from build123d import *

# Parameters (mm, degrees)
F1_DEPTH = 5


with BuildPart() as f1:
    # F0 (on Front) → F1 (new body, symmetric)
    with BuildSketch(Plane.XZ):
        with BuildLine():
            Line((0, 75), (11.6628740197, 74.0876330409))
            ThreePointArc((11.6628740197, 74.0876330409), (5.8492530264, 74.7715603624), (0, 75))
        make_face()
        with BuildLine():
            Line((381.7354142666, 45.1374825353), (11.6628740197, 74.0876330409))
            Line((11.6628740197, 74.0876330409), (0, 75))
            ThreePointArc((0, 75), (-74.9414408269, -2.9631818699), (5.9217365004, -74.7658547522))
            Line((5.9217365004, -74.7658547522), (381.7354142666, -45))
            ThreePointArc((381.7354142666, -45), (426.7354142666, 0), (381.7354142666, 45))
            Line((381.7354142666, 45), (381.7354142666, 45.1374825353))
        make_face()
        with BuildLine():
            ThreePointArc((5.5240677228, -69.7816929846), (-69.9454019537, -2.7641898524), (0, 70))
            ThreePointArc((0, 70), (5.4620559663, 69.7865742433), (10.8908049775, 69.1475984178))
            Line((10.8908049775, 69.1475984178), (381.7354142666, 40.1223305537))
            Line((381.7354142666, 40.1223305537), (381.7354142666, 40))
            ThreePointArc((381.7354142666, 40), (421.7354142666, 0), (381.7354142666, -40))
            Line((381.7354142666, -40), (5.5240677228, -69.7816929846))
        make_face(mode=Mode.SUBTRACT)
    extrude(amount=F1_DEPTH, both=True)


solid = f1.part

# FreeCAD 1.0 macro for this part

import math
import FreeCAD as App
import Part
import Sketcher
from FreeCAD import Vector

doc = App.newDocument("Part")
body = doc.addObject("PartDesign::Body", "Body")

sketch1 = body.newObject("Sketcher::SketchObject", "Sketch")
sketch1.AttachmentSupport = (doc.getObject("XZ_Plane"), [""])
sketch1.MapMode = "FlatFace"
sketch1.addGeometry(Part.ArcOfCircle(Part.Circle(Vector(0, 0, 0), Vector(0, 0, 1), 75), math.radians(81.05), math.radians(90)), False)
sketch1.addGeometry(Part.ArcOfCircle(Part.Circle(Vector(0, 0, 0), Vector(0, 0, 1), 75), math.radians(90), math.radians(275)), False)
sketch1.addGeometry(Part.LineSegment(Vector(5.92, -74.77, 0), Vector(381.74, -45, 0)), False)
sketch1.addGeometry(Part.ArcOfCircle(Part.Circle(Vector(381.74, 0, 0), Vector(0, 0, 1), 45), math.radians(-90), math.radians(90)), False)
sketch1.addGeometry(Part.LineSegment(Vector(381.74, 45, 0), Vector(381.74, 45.14, 0)), False)
sketch1.addGeometry(Part.LineSegment(Vector(381.74, 45.14, 0), Vector(11.66, 74.09, 0)), False)
sketch1.addGeometry(Part.LineSegment(Vector(381.74, -40, 0), Vector(5.52, -69.78, 0)), False)
sketch1.addGeometry(Part.ArcOfCircle(Part.Circle(Vector(0, 0, 0), Vector(0, 0, 1), 70), math.radians(90), math.radians(275)), False)
sketch1.addGeometry(Part.ArcOfCircle(Part.Circle(Vector(0, 0, 0), Vector(0, 0, 1), 70), math.radians(81.05), math.radians(90)), False)
sketch1.addGeometry(Part.LineSegment(Vector(10.89, 69.15, 0), Vector(381.74, 40.12, 0)), False)
sketch1.addGeometry(Part.LineSegment(Vector(381.74, 40.12, 0), Vector(381.74, 40, 0)), False)
sketch1.addGeometry(Part.ArcOfCircle(Part.Circle(Vector(381.74, 0, 0), Vector(0, 0, 1), 40), math.radians(-90), math.radians(90)), False)
sketch1.addConstraint(Sketcher.Constraint("Tangent", 0, 2, 1, 1))
sketch1.addConstraint(Sketcher.Constraint("Tangent", 1, 2, 2, 1))
sketch1.addConstraint(Sketcher.Constraint("Coincident", 2, 2, 3, 1))
sketch1.addConstraint(Sketcher.Constraint("Coincident", 3, 2, 4, 1))
sketch1.addConstraint(Sketcher.Constraint("Coincident", 4, 2, 5, 1))
sketch1.addConstraint(Sketcher.Constraint("Coincident", 5, 2, 0, 1))
sketch1.addConstraint(Sketcher.Constraint("Tangent", 6, 2, 7, 2))
sketch1.addConstraint(Sketcher.Constraint("Tangent", 7, 1, 8, 2))
sketch1.addConstraint(Sketcher.Constraint("Coincident", 8, 1, 9, 1))
sketch1.addConstraint(Sketcher.Constraint("Coincident", 9, 2, 10, 1))
sketch1.addConstraint(Sketcher.Constraint("Coincident", 10, 2, 11, 2))
sketch1.addConstraint(Sketcher.Constraint("Coincident", 11, 1, 6, 1))
sketch1.addConstraint(Sketcher.Constraint("Vertical", 4))
sketch1.addConstraint(Sketcher.Constraint("Vertical", 10))
sketch1.addConstraint(Sketcher.Constraint("Coincident", 0, 3, -1, 1))
sketch1.addConstraint(Sketcher.Constraint("Coincident", 7, 3, -1, 1))
sketch1.addConstraint(Sketcher.Constraint("Coincident", 11, 3, 3, 3))
sketch1.addConstraint(Sketcher.Constraint("Equal", 0, 1))
sketch1.addConstraint(Sketcher.Constraint("Equal", 7, 8))
sketch1.addConstraint(Sketcher.Constraint("Symmetric", 2, 2, 3, 2, -1))
sketch1.addConstraint(Sketcher.Constraint("PointOnObject", 0, 2, -2))
sketch1.addConstraint(Sketcher.Constraint("PointOnObject", 7, 1, -2))
sketch1.addConstraint(Sketcher.Constraint("Vertical", 11, 3, 2, 2))
sketch1.addConstraint(Sketcher.Constraint("Vertical", 4, 2, 9, 2))
sketch1.addConstraint(Sketcher.Constraint("Vertical", 10, 2, 11, 1))
sketch1.addConstraint(Sketcher.Constraint("Radius", 0, 75.0))
sketch1.addConstraint(Sketcher.Constraint("Radius", 3, 45.0))
sketch1.addConstraint(Sketcher.Constraint("Radius", 7, 70.0))
sketch1.addConstraint(Sketcher.Constraint("Radius", 11, 40.0))
sketch1.addConstraint(Sketcher.Constraint("DistanceY", 10, 2, 10, 1, 0.122331))
sketch1.addConstraint(Sketcher.Constraint("DistanceY", -1, 1, 8, 1, 69.147598))
sketch1.addConstraint(Sketcher.Constraint("Distance", 2, 376.990619))
sketch1.addConstraint(Sketcher.Constraint("DistanceY", 4, 1, 4, 2, 0.137483))
sketch1.addConstraint(Sketcher.Constraint("DistanceX", 8, 1, 5, 2, 0.772069))
pad1 = body.newObject("PartDesign::Pad", "Pad")
pad1.Profile = sketch1
pad1.Length = 10
pad1.Midplane = True

doc.recompute()
